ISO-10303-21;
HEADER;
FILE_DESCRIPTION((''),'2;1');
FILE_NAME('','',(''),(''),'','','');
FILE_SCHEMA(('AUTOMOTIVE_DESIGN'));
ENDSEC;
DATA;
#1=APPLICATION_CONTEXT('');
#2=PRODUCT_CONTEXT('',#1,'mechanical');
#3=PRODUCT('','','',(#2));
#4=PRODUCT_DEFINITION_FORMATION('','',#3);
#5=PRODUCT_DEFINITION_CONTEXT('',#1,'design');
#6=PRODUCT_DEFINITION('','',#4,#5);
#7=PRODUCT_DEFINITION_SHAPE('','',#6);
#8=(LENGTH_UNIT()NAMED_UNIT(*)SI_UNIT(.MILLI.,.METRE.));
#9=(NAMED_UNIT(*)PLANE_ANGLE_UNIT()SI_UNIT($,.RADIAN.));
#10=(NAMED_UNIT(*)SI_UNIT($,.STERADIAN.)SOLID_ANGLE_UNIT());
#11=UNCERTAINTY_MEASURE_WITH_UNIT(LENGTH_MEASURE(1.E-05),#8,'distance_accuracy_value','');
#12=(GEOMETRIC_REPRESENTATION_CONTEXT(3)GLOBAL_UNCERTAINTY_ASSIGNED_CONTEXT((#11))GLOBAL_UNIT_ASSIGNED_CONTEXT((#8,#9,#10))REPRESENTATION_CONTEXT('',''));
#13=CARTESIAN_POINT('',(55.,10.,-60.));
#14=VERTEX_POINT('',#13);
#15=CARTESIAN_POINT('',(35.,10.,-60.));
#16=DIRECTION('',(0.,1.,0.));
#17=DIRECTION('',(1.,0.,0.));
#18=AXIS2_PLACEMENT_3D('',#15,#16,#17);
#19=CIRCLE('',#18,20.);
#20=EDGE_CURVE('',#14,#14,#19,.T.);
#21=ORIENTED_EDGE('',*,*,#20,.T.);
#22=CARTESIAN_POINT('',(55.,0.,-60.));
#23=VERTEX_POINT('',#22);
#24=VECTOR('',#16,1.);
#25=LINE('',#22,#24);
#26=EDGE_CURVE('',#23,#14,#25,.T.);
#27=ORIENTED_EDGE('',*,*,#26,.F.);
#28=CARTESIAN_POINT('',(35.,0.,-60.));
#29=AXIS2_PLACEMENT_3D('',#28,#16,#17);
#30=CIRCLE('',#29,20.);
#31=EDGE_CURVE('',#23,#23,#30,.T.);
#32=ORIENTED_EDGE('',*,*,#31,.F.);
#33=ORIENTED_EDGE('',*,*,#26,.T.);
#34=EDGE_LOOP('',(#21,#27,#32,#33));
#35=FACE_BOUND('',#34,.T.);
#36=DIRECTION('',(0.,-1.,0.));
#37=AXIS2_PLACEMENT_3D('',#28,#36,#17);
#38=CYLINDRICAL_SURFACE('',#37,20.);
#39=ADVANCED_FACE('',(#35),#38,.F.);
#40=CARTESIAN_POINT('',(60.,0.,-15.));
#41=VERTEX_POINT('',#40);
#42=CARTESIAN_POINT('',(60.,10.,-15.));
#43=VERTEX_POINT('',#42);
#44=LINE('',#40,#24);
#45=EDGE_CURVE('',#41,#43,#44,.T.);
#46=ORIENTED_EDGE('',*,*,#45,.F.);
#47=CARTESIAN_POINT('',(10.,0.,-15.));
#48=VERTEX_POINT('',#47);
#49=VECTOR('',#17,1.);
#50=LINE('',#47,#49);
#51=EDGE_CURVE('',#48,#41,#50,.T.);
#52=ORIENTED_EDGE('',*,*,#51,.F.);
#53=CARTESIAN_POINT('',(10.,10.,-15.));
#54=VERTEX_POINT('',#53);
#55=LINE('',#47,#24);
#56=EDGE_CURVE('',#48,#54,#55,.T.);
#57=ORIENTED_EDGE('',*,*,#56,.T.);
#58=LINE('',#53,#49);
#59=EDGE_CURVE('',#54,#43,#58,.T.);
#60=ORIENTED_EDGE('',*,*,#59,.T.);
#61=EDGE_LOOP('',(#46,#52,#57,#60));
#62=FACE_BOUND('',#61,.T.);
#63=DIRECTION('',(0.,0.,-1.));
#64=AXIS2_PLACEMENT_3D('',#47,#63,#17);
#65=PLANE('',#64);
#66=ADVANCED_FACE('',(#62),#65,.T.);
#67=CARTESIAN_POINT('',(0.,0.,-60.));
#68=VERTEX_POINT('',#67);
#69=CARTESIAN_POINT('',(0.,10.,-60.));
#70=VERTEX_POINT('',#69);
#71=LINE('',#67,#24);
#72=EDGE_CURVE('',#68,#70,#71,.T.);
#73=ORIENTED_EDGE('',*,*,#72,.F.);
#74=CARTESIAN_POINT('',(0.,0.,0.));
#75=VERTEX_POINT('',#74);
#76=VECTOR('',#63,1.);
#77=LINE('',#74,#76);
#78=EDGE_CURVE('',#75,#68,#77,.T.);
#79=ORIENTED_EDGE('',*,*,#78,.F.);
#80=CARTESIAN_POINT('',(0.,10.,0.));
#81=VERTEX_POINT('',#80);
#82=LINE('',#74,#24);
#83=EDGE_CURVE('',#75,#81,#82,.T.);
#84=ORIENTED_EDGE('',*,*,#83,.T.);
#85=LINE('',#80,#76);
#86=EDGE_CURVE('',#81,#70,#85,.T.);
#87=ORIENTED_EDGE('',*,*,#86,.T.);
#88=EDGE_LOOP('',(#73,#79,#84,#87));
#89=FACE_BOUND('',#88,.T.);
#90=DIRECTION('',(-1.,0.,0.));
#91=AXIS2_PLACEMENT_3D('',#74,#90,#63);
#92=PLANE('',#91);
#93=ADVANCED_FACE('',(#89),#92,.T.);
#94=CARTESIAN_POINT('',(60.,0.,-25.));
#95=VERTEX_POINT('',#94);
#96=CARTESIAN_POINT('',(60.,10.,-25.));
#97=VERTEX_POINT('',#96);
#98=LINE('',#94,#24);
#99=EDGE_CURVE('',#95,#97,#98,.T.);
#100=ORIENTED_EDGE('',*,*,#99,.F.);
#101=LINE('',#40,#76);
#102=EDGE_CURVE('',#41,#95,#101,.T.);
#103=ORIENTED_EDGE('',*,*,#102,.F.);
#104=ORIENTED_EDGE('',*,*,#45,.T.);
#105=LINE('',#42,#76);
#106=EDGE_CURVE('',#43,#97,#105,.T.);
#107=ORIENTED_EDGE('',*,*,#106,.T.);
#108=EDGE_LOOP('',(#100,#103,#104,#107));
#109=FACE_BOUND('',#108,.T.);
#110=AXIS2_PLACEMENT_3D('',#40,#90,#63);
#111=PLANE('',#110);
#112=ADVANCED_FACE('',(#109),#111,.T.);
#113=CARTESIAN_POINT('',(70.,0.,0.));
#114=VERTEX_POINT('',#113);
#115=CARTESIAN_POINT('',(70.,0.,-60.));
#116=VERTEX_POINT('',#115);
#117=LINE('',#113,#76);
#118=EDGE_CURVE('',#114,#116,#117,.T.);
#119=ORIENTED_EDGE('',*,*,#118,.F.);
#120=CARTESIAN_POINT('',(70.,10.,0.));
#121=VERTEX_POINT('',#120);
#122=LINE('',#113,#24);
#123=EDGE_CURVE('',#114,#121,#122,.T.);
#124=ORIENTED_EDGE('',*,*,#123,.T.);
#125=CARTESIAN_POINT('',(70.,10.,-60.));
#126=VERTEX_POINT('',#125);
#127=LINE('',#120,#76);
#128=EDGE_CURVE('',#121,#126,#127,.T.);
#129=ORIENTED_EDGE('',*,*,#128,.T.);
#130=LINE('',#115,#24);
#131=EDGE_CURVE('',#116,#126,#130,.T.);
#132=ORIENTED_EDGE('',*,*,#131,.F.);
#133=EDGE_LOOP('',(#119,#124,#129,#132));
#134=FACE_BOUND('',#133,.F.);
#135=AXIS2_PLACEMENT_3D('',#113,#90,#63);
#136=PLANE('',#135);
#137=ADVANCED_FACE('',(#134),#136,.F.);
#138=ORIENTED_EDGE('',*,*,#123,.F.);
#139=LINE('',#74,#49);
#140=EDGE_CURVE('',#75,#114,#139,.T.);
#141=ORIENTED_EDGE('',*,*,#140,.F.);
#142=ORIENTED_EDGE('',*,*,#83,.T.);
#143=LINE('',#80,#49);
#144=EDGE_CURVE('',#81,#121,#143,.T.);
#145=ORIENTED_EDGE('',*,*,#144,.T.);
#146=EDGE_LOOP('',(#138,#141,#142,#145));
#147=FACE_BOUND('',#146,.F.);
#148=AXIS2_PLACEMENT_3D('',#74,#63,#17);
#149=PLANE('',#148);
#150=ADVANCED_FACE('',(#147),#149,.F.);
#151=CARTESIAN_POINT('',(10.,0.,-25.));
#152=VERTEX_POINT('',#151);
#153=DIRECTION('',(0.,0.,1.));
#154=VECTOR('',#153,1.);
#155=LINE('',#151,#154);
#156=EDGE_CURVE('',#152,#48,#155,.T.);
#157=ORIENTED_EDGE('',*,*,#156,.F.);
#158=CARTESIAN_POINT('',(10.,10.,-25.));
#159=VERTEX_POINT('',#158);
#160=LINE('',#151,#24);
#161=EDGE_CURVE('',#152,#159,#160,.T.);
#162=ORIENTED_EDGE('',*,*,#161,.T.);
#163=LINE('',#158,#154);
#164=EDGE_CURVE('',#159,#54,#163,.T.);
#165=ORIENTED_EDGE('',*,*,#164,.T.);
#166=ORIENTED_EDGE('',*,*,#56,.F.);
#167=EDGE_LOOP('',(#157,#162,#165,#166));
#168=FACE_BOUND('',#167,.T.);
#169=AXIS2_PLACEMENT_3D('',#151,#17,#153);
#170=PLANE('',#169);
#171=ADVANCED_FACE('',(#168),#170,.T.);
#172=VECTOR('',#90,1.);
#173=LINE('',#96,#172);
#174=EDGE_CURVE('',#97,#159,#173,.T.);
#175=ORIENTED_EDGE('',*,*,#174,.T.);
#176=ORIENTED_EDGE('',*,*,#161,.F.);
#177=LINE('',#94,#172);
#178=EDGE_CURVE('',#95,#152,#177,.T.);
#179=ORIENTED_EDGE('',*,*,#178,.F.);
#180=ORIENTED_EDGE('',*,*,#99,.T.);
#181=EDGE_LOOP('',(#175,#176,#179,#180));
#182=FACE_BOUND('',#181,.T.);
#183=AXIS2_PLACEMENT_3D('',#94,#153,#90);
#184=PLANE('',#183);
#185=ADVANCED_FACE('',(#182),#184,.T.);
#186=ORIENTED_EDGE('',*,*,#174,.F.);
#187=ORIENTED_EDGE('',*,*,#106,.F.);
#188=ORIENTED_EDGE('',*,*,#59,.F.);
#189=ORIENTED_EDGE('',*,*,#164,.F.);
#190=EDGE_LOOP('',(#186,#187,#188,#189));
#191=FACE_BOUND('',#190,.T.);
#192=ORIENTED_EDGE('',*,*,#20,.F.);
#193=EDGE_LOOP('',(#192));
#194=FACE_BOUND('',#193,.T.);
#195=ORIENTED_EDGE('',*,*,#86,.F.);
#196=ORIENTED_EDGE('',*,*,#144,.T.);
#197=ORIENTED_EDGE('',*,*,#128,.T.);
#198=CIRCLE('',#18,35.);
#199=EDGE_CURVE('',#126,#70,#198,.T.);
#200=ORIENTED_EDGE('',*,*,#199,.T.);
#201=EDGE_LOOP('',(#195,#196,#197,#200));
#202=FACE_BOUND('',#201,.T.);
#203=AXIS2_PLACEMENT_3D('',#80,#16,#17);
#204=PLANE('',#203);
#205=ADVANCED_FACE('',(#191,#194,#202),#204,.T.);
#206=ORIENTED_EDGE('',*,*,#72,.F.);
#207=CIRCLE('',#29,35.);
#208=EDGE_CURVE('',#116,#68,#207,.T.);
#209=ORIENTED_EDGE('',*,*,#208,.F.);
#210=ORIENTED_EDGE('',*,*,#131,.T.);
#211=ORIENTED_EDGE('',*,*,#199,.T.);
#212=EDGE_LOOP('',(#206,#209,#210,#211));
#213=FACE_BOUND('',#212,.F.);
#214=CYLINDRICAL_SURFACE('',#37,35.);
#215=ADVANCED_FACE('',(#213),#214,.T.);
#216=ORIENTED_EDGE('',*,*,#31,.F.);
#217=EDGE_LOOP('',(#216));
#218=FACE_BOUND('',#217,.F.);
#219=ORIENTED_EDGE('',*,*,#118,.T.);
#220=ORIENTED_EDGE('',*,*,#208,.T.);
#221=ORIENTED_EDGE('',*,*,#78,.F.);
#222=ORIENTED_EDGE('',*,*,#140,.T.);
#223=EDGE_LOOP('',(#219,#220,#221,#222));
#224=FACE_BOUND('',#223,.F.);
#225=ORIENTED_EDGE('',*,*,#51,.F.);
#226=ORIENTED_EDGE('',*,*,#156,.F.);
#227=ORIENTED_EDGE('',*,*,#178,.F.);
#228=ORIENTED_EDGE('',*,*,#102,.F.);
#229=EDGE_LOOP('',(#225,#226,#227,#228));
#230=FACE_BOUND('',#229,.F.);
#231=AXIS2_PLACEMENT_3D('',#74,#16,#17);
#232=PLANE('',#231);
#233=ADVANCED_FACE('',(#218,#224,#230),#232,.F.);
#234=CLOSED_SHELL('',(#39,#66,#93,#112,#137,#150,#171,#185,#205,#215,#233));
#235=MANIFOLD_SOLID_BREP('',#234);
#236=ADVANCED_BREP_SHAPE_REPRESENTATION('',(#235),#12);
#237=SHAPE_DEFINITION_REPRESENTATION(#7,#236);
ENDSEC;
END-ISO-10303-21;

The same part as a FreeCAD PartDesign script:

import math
import FreeCAD as App
import Part
import Sketcher


def add_polygon(sketch, points):
    """Adds a closed chain of lines whose ends are joined by coincident constraints."""
    first, n = sketch.GeometryCount, len(points)
    for a, b in zip(points, points[1:] + points[:1]):
        sketch.addGeometry(Part.LineSegment(App.Vector(*a, 0), App.Vector(*b, 0)), False)
    for i in range(n):
        sketch.addConstraint(Sketcher.Constraint("Coincident", first + i, 2, first + (i + 1) % n, 1))

doc = App.newDocument("Part")
body = doc.addObject("PartDesign::Body", "Body")

# Sketch on XZ plane
sketch1 = body.newObject("Sketcher::SketchObject", "Sketch")
sketch1.AttachmentSupport = (doc.getObject("XZ_Plane"), [""])
sketch1.MapMode = "FlatFace"
sketch1.addGeometry(Part.LineSegment(App.Vector(0, -60, 0), App.Vector(0, 0, 0)), False)  # 0
sketch1.addGeometry(Part.LineSegment(App.Vector(0, 0, 0), App.Vector(70, 0, 0)), False)  # 1
sketch1.addGeometry(Part.LineSegment(App.Vector(70, 0, 0), App.Vector(70, -60, 0)), False)  # 2
sketch1.addGeometry(Part.ArcOfCircle(Part.Circle(App.Vector(35, -60, 0), App.Vector(0, 0, 1), 35), math.radians(180), math.radians(360)), False)  # 3
add_polygon(sketch1, [(60, -25), (60, -15), (10, -15), (10, -25)])  # lines 4-7
sketch1.addGeometry(Part.Circle(App.Vector(35, -60, 0), App.Vector(0, 0, 1), 20), False)  # 8
sketch1.addConstraint(Sketcher.Constraint("Coincident", 0, 2, 1, 1))
sketch1.addConstraint(Sketcher.Constraint("Coincident", 1, 2, 2, 1))
sketch1.addConstraint(Sketcher.Constraint("Tangent", 2, 2, 3, 2))
sketch1.addConstraint(Sketcher.Constraint("Tangent", 3, 1, 0, 1))
sketch1.addConstraint(Sketcher.Constraint("Vertical", 0))
sketch1.addConstraint(Sketcher.Constraint("Horizontal", 1))
sketch1.addConstraint(Sketcher.Constraint("Vertical", 2))
sketch1.addConstraint(Sketcher.Constraint("Vertical", 4))
sketch1.addConstraint(Sketcher.Constraint("Horizontal", 5))
sketch1.addConstraint(Sketcher.Constraint("Vertical", 6))
sketch1.addConstraint(Sketcher.Constraint("Horizontal", 7))
sketch1.addConstraint(Sketcher.Constraint("Coincident", 0, 2, -1, 1))
sketch1.addConstraint(Sketcher.Constraint("Coincident", 8, 3, 3, 3))
sketch1.addConstraint(Sketcher.Constraint("Diameter", 8, 40.0))
sketch1.addConstraint(Sketcher.Constraint("Radius", 3, 35.0))
sketch1.addConstraint(Sketcher.Constraint("DistanceX", 5, 2, 5, 1, 50.0))
sketch1.addConstraint(Sketcher.Constraint("DistanceY", 0, 1, 0, 2, 60.0))
sketch1.addConstraint(Sketcher.Constraint("DistanceY", 4, 1, 4, 2, 10.0))
sketch1.addConstraint(Sketcher.Constraint("DistanceX", -1, 1, 4, 2, 60.0))
sketch1.addConstraint(Sketcher.Constraint("DistanceY", 4, 2, -1, 1, 15.0))
pad1 = body.newObject("PartDesign::Pad", "Pad")
pad1.Profile = sketch1
pad1.Length = 10
pad1.Reversed = True

doc.recompute()
